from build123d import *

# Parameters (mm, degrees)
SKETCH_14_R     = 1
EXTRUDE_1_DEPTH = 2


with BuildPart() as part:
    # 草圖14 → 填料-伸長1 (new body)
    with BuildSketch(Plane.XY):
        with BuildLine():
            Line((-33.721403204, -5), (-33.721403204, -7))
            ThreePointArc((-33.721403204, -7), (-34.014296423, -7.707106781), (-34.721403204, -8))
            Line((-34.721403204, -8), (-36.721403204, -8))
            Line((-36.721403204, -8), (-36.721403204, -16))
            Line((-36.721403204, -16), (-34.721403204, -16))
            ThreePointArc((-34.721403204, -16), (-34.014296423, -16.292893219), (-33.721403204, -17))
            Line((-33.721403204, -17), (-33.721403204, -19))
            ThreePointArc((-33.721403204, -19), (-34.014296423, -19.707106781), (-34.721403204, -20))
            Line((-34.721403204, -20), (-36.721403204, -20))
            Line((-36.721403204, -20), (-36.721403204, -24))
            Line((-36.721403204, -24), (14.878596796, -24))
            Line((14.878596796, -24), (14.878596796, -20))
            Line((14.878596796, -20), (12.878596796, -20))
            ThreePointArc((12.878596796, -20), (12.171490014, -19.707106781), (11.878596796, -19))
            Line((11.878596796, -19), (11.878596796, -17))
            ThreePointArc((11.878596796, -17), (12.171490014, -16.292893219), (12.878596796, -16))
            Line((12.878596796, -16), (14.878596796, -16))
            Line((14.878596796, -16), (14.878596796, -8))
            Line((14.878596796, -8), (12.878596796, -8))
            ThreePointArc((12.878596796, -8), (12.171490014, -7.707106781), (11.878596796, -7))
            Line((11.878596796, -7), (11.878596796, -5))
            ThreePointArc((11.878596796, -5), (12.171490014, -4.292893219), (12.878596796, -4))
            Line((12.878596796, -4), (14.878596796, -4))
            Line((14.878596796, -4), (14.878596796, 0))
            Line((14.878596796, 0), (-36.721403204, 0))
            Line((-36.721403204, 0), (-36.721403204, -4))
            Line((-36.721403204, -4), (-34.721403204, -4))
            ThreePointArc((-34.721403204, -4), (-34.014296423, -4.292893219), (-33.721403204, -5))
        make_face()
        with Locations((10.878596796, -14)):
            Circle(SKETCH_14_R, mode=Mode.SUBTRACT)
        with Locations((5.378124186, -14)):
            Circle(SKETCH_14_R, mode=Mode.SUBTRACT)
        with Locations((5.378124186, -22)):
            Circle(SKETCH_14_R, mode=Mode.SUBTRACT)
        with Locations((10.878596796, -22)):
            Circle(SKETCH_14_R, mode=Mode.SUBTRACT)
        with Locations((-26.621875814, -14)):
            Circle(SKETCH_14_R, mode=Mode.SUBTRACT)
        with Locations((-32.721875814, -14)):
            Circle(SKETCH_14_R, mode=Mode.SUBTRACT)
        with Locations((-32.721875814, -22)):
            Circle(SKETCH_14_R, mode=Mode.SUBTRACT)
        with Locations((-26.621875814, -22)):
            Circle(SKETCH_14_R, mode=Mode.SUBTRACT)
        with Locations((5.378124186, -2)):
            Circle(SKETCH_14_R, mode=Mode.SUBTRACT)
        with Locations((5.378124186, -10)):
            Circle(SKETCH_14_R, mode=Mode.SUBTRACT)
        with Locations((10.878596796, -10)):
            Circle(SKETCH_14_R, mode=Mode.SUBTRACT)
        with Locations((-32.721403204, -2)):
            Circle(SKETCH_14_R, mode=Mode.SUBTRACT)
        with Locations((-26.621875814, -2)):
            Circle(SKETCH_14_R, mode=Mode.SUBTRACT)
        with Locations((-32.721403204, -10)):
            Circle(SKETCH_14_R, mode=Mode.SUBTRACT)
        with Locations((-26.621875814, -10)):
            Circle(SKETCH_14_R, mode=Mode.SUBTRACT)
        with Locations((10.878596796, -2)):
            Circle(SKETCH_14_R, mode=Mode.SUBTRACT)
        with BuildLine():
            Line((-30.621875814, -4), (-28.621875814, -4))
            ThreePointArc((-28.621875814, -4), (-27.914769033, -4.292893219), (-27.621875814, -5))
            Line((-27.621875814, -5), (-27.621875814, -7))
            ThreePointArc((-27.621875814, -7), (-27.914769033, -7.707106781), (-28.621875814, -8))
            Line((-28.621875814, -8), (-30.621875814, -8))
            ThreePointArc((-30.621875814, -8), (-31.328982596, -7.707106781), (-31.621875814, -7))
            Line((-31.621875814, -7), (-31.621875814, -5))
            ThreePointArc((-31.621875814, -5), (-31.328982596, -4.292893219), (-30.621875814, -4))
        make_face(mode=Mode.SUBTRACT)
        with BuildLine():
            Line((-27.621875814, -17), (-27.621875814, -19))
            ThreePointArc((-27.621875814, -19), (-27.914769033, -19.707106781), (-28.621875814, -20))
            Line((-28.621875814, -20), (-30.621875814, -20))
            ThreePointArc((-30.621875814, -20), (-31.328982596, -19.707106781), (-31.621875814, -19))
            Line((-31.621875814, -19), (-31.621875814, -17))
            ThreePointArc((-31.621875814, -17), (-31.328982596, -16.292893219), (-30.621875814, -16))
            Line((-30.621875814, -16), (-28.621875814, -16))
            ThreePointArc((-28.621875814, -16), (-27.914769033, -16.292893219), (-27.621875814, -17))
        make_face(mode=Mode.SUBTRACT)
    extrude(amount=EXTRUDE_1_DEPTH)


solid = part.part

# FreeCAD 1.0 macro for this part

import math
import FreeCAD as App
import Part
import Sketcher

V = App.Vector
Q = App.Units.Quantity

doc = App.newDocument("Part")
body = doc.addObject("PartDesign::Body", "Body")

# Sketch on XY plane
sketch1 = doc.addObject("Sketcher::SketchObject", "Sketch")
body.addObject(sketch1)
sketch1.AttachmentSupport = (doc.XY_Plane, [""])
sketch1.MapMode = "FlatFace"
sketch1.addGeometry(Part.LineSegment(V(-33.7, -5, 0), V(-33.7, -7, 0)), False)
sketch1.addGeometry(Part.ArcOfCircle(Part.Circle(V(-34.7, -7, 0), V(0, 0, 1), 1), math.radians(-90), math.radians(0)), False)
sketch1.addGeometry(Part.LineSegment(V(-34.7, -8, 0), V(-36.7, -8, 0)), False)
sketch1.addGeometry(Part.LineSegment(V(-36.7, -8, 0), V(-36.7, -16, 0)), False)
sketch1.addGeometry(Part.LineSegment(V(-36.7, -16, 0), V(-34.7, -16, 0)), False)
sketch1.addGeometry(Part.ArcOfCircle(Part.Circle(V(-34.7, -17, 0), V(0, 0, 1), 1), math.radians(0), math.radians(90)), False)
sketch1.addGeometry(Part.LineSegment(V(-33.7, -17, 0), V(-33.7, -19, 0)), False)
sketch1.addGeometry(Part.ArcOfCircle(Part.Circle(V(-34.7, -19, 0), V(0, 0, 1), 1), math.radians(-90), math.radians(0)), False)
sketch1.addGeometry(Part.LineSegment(V(-34.7, -20, 0), V(-36.7, -20, 0)), False)
sketch1.addGeometry(Part.LineSegment(V(-36.7, -20, 0), V(-36.7, -24, 0)), False)
sketch1.addGeometry(Part.LineSegment(V(-36.7, -24, 0), V(14.9, -24, 0)), False)
sketch1.addGeometry(Part.LineSegment(V(14.9, -24, 0), V(14.9, -20, 0)), False)
sketch1.addGeometry(Part.LineSegment(V(14.9, -20, 0), V(12.9, -20, 0)), False)
sketch1.addGeometry(Part.ArcOfCircle(Part.Circle(V(12.9, -19, 0), V(0, 0, 1), 1), math.radians(180), math.radians(270)), False)
sketch1.addGeometry(Part.LineSegment(V(11.9, -19, 0), V(11.9, -17, 0)), False)
sketch1.addGeometry(Part.ArcOfCircle(Part.Circle(V(12.9, -17, 0), V(0, 0, 1), 1), math.radians(90), math.radians(180)), False)
sketch1.addGeometry(Part.LineSegment(V(12.9, -16, 0), V(14.9, -16, 0)), False)
sketch1.addGeometry(Part.LineSegment(V(14.9, -16, 0), V(14.9, -8, 0)), False)
sketch1.addGeometry(Part.LineSegment(V(14.9, -8, 0), V(12.9, -8, 0)), False)
sketch1.addGeometry(Part.ArcOfCircle(Part.Circle(V(12.9, -7, 0), V(0, 0, 1), 1), math.radians(180), math.radians(270)), False)
sketch1.addGeometry(Part.LineSegment(V(11.9, -7, 0), V(11.9, -5, 0)), False)
sketch1.addGeometry(Part.ArcOfCircle(Part.Circle(V(12.9, -5, 0), V(0, 0, 1), 1), math.radians(90), math.radians(180)), False)
sketch1.addGeometry(Part.LineSegment(V(12.9, -4, 0), V(14.9, -4, 0)), False)
sketch1.addGeometry(Part.LineSegment(V(14.9, -4, 0), V(14.9, 0, 0)), False)
sketch1.addGeometry(Part.LineSegment(V(14.9, 0, 0), V(-36.7, 0, 0)), False)
sketch1.addGeometry(Part.LineSegment(V(-36.7, 0, 0), V(-36.7, -4, 0)), False)
sketch1.addGeometry(Part.LineSegment(V(-36.7, -4, 0), V(-34.7, -4, 0)), False)
sketch1.addGeometry(Part.ArcOfCircle(Part.Circle(V(-34.7, -5, 0), V(0, 0, 1), 1), math.radians(0), math.radians(90)), False)
sketch1.addGeometry(Part.Circle(V(-32.7, -22, 0), V(0, 0, 1), 1), False)
sketch1.addGeometry(Part.Circle(V(-26.6, -22, 0), V(0, 0, 1), 1), False)
sketch1.addGeometry(Part.ArcOfCircle(Part.Circle(V(-28.6, -17, 0), V(0, 0, 1), 1), math.radians(0), math.radians(90)), False)
sketch1.addGeometry(Part.LineSegment(V(-27.6, -17, 0), V(-27.6, -19, 0)), False)
sketch1.addGeometry(Part.ArcOfCircle(Part.Circle(V(-28.6, -19, 0), V(0, 0, 1), 1), math.radians(-90), math.radians(0)), False)
sketch1.addGeometry(Part.LineSegment(V(-28.6, -20, 0), V(-30.6, -20, 0)), False)
sketch1.addGeometry(Part.ArcOfCircle(Part.Circle(V(-30.6, -19, 0), V(0, 0, 1), 1), math.radians(180), math.radians(270)), False)
sketch1.addGeometry(Part.LineSegment(V(-31.6, -19, 0), V(-31.6, -17, 0)), False)
sketch1.addGeometry(Part.ArcOfCircle(Part.Circle(V(-30.6, -17, 0), V(0, 0, 1), 1), math.radians(90), math.radians(180)), False)
sketch1.addGeometry(Part.LineSegment(V(-30.6, -16, 0), V(-28.6, -16, 0)), False)
sketch1.addGeometry(Part.Circle(V(-32.7, -14, 0), V(0, 0, 1), 1), False)
sketch1.addGeometry(Part.Circle(V(-26.6, -14, 0), V(0, 0, 1), 1), False)
sketch1.addGeometry(Part.Circle(V(5.4, -22, 0), V(0, 0, 1), 1), False)
sketch1.addGeometry(Part.Circle(V(10.9, -22, 0), V(0, 0, 1), 1), False)
sketch1.addGeometry(Part.Circle(V(5.4, -14, 0), V(0, 0, 1), 1), False)
sketch1.addGeometry(Part.Circle(V(10.9, -14, 0), V(0, 0, 1), 1), False)
sketch1.addGeometry(Part.Circle(V(-32.7, -10, 0), V(0, 0, 1), 1), False)
sketch1.addGeometry(Part.Circle(V(-26.6, -10, 0), V(0, 0, 1), 1), False)
sketch1.addGeometry(Part.ArcOfCircle(Part.Circle(V(-30.6, -5, 0), V(0, 0, 1), 1), math.radians(90), math.radians(180)), False)
sketch1.addGeometry(Part.LineSegment(V(-30.6, -4, 0), V(-28.6, -4, 0)), False)
sketch1.addGeometry(Part.ArcOfCircle(Part.Circle(V(-28.6, -5, 0), V(0, 0, 1), 1), math.radians(0), math.radians(90)), False)
sketch1.addGeometry(Part.LineSegment(V(-27.6, -5, 0), V(-27.6, -7, 0)), False)
sketch1.addGeometry(Part.ArcOfCircle(Part.Circle(V(-28.6, -7, 0), V(0, 0, 1), 1), math.radians(-90), math.radians(0)), False)
sketch1.addGeometry(Part.LineSegment(V(-28.6, -8, 0), V(-30.6, -8, 0)), False)
sketch1.addGeometry(Part.ArcOfCircle(Part.Circle(V(-30.6, -7, 0), V(0, 0, 1), 1), math.radians(180), math.radians(270)), False)
sketch1.addGeometry(Part.LineSegment(V(-31.6, -7, 0), V(-31.6, -5, 0)), False)
sketch1.addGeometry(Part.Circle(V(-32.7, -2, 0), V(0, 0, 1), 1), False)
sketch1.addGeometry(Part.Circle(V(-26.6, -2, 0), V(0, 0, 1), 1), False)
sketch1.addGeometry(Part.Circle(V(5.4, -10, 0), V(0, 0, 1), 1), False)
sketch1.addGeometry(Part.Circle(V(10.9, -10, 0), V(0, 0, 1), 1), False)
sketch1.addGeometry(Part.Circle(V(5.4, -2, 0), V(0, 0, 1), 1), False)
sketch1.addGeometry(Part.Circle(V(10.9, -2, 0), V(0, 0, 1), 1), False)
sketch1.addConstraint(Sketcher.Constraint("Tangent", 0, 2, 1, 2))
sketch1.addConstraint(Sketcher.Constraint("Tangent", 1, 1, 2, 1))
sketch1.addConstraint(Sketcher.Constraint("Coincident", 2, 2, 3, 1))
sketch1.addConstraint(Sketcher.Constraint("Coincident", 3, 2, 4, 1))
sketch1.addConstraint(Sketcher.Constraint("Tangent", 4, 2, 5, 2))
sketch1.addConstraint(Sketcher.Constraint("Tangent", 5, 1, 6, 1))
sketch1.addConstraint(Sketcher.Constraint("Tangent", 6, 2, 7, 2))
sketch1.addConstraint(Sketcher.Constraint("Tangent", 7, 1, 8, 1))
sketch1.addConstraint(Sketcher.Constraint("Coincident", 8, 2, 9, 1))
sketch1.addConstraint(Sketcher.Constraint("Coincident", 9, 2, 10, 1))
sketch1.addConstraint(Sketcher.Constraint("Coincident", 10, 2, 11, 1))
sketch1.addConstraint(Sketcher.Constraint("Coincident", 11, 2, 12, 1))
sketch1.addConstraint(Sketcher.Constraint("Tangent", 12, 2, 13, 2))
sketch1.addConstraint(Sketcher.Constraint("Tangent", 13, 1, 14, 1))
sketch1.addConstraint(Sketcher.Constraint("Tangent", 14, 2, 15, 2))
sketch1.addConstraint(Sketcher.Constraint("Tangent", 15, 1, 16, 1))
sketch1.addConstraint(Sketcher.Constraint("Coincident", 16, 2, 17, 1))
sketch1.addConstraint(Sketcher.Constraint("Coincident", 17, 2, 18, 1))
sketch1.addConstraint(Sketcher.Constraint("Tangent", 18, 2, 19, 2))
sketch1.addConstraint(Sketcher.Constraint("Tangent", 19, 1, 20, 1))
sketch1.addConstraint(Sketcher.Constraint("Tangent", 20, 2, 21, 2))
sketch1.addConstraint(Sketcher.Constraint("Tangent", 21, 1, 22, 1))
sketch1.addConstraint(Sketcher.Constraint("Coincident", 22, 2, 23, 1))
sketch1.addConstraint(Sketcher.Constraint("Coincident", 23, 2, 24, 1))
sketch1.addConstraint(Sketcher.Constraint("Coincident", 24, 2, 25, 1))
sketch1.addConstraint(Sketcher.Constraint("Coincident", 25, 2, 26, 1))
sketch1.addConstraint(Sketcher.Constraint("Tangent", 26, 2, 27, 2))
sketch1.addConstraint(Sketcher.Constraint("Tangent", 27, 1, 0, 1))
sketch1.addConstraint(Sketcher.Constraint("Tangent", 30, 1, 31, 1))
sketch1.addConstraint(Sketcher.Constraint("Tangent", 31, 2, 32, 2))
sketch1.addConstraint(Sketcher.Constraint("Tangent", 32, 1, 33, 1))
sketch1.addConstraint(Sketcher.Constraint("Tangent", 33, 2, 34, 2))
sketch1.addConstraint(Sketcher.Constraint("Tangent", 34, 1, 35, 1))
sketch1.addConstraint(Sketcher.Constraint("Tangent", 35, 2, 36, 2))
sketch1.addConstraint(Sketcher.Constraint("Tangent", 36, 1, 37, 1))
sketch1.addConstraint(Sketcher.Constraint("Tangent", 37, 2, 30, 2))
sketch1.addConstraint(Sketcher.Constraint("Tangent", 46, 1, 47, 1))
sketch1.addConstraint(Sketcher.Constraint("Tangent", 47, 2, 48, 2))
sketch1.addConstraint(Sketcher.Constraint("Tangent", 48, 1, 49, 1))
sketch1.addConstraint(Sketcher.Constraint("Tangent", 49, 2, 50, 2))
sketch1.addConstraint(Sketcher.Constraint("Tangent", 50, 1, 51, 1))
sketch1.addConstraint(Sketcher.Constraint("Tangent", 51, 2, 52, 2))
sketch1.addConstraint(Sketcher.Constraint("Tangent", 52, 1, 53, 1))
sketch1.addConstraint(Sketcher.Constraint("Tangent", 53, 2, 46, 2))
sketch1.addConstraint(Sketcher.Constraint("Vertical", 0))
sketch1.addConstraint(Sketcher.Constraint("Horizontal", 2))
sketch1.addConstraint(Sketcher.Constraint("Vertical", 3))
sketch1.addConstraint(Sketcher.Constraint("Horizontal", 4))
sketch1.addConstraint(Sketcher.Constraint("Vertical", 6))
sketch1.addConstraint(Sketcher.Constraint("Horizontal", 8))
sketch1.addConstraint(Sketcher.Constraint("Vertical", 9))
sketch1.addConstraint(Sketcher.Constraint("Horizontal", 10))
sketch1.addConstraint(Sketcher.Constraint("Vertical", 11))
sketch1.addConstraint(Sketcher.Constraint("Horizontal", 12))
sketch1.addConstraint(Sketcher.Constraint("Vertical", 14))
sketch1.addConstraint(Sketcher.Constraint("Horizontal", 16))
sketch1.addConstraint(Sketcher.Constraint("Vertical", 17))
sketch1.addConstraint(Sketcher.Constraint("Horizontal", 18))
sketch1.addConstraint(Sketcher.Constraint("Vertical", 20))
sketch1.addConstraint(Sketcher.Constraint("Horizontal", 22))
sketch1.addConstraint(Sketcher.Constraint("Vertical", 23))
sketch1.addConstraint(Sketcher.Constraint("Horizontal", 24))
sketch1.addConstraint(Sketcher.Constraint("Vertical", 25))
sketch1.addConstraint(Sketcher.Constraint("Horizontal", 26))
sketch1.addConstraint(Sketcher.Constraint("Vertical", 31))
sketch1.addConstraint(Sketcher.Constraint("Horizontal", 33))
sketch1.addConstraint(Sketcher.Constraint("Vertical", 35))
sketch1.addConstraint(Sketcher.Constraint("Horizontal", 37))
sketch1.addConstraint(Sketcher.Constraint("Horizontal", 47))
sketch1.addConstraint(Sketcher.Constraint("Vertical", 49))
sketch1.addConstraint(Sketcher.Constraint("Horizontal", 51))
sketch1.addConstraint(Sketcher.Constraint("Vertical", 53))
sketch1.addConstraint(Sketcher.Constraint("Equal", 1, 5))
sketch1.addConstraint(Sketcher.Constraint("Equal", 5, 7))
sketch1.addConstraint(Sketcher.Constraint("Equal", 7, 13))
sketch1.addConstraint(Sketcher.Constraint("Equal", 13, 15))
sketch1.addConstraint(Sketcher.Constraint("Equal", 15, 19))
sketch1.addConstraint(Sketcher.Constraint("Equal", 19, 21))
sketch1.addConstraint(Sketcher.Constraint("Equal", 21, 27))
sketch1.addConstraint(Sketcher.Constraint("Equal", 27, 28))
sketch1.addConstraint(Sketcher.Constraint("Equal", 28, 29))
sketch1.addConstraint(Sketcher.Constraint("Equal", 29, 30))
sketch1.addConstraint(Sketcher.Constraint("Equal", 30, 32))
sketch1.addConstraint(Sketcher.Constraint("Equal", 32, 34))
sketch1.addConstraint(Sketcher.Constraint("Equal", 34, 36))
sketch1.addConstraint(Sketcher.Constraint("Equal", 36, 38))
sketch1.addConstraint(Sketcher.Constraint("Equal", 38, 39))
sketch1.addConstraint(Sketcher.Constraint("Equal", 39, 40))
sketch1.addConstraint(Sketcher.Constraint("Equal", 40, 41))
sketch1.addConstraint(Sketcher.Constraint("Equal", 41, 42))
sketch1.addConstraint(Sketcher.Constraint("Equal", 42, 43))
sketch1.addConstraint(Sketcher.Constraint("Equal", 43, 44))
sketch1.addConstraint(Sketcher.Constraint("Equal", 44, 45))
sketch1.addConstraint(Sketcher.Constraint("Equal", 45, 46))
sketch1.addConstraint(Sketcher.Constraint("Equal", 46, 48))
sketch1.addConstraint(Sketcher.Constraint("Equal", 48, 50))
sketch1.addConstraint(Sketcher.Constraint("Equal", 50, 52))
sketch1.addConstraint(Sketcher.Constraint("Equal", 52, 54))
sketch1.addConstraint(Sketcher.Constraint("Equal", 54, 55))
sketch1.addConstraint(Sketcher.Constraint("Equal", 55, 56))
sketch1.addConstraint(Sketcher.Constraint("Equal", 56, 57))
sketch1.addConstraint(Sketcher.Constraint("Equal", 57, 58))
sketch1.addConstraint(Sketcher.Constraint("Equal", 58, 59))
sketch1.addConstraint(Sketcher.Constraint("PointOnObject", 23, 2, -1))
sketch1.addConstraint(Sketcher.Constraint("Horizontal", 7, 3, 13, 3))
sketch1.addConstraint(Sketcher.Constraint("Horizontal", 5, 3, 15, 3))
sketch1.addConstraint(Sketcher.Constraint("Horizontal", 1, 3, 19, 3))
sketch1.addConstraint(Sketcher.Constraint("Horizontal", 21, 3, 27, 3))
sketch1.addConstraint(Sketcher.Constraint("Horizontal", 28, 3, 29, 3))
sketch1.addConstraint(Sketcher.Constraint("Horizontal", 15, 3, 30, 3))
sketch1.addConstraint(Sketcher.Constraint("Horizontal", 13, 3, 32, 3))
sketch1.addConstraint(Sketcher.Constraint("Horizontal", 38, 3, 39, 3))
sketch1.addConstraint(Sketcher.Constraint("Horizontal", 29, 3, 40, 3))
sketch1.addConstraint(Sketcher.Constraint("Horizontal", 40, 3, 41, 3))
sketch1.addConstraint(Sketcher.Constraint("Horizontal", 39, 3, 42, 3))
sketch1.addConstraint(Sketcher.Constraint("Horizontal", 42, 3, 43, 3))
sketch1.addConstraint(Sketcher.Constraint("Horizontal", 44, 3, 45, 3))
sketch1.addConstraint(Sketcher.Constraint("Horizontal", 27, 3, 46, 3))
sketch1.addConstraint(Sketcher.Constraint("Horizontal", 19, 3, 50, 3))
sketch1.addConstraint(Sketcher.Constraint("Horizontal", 54, 3, 55, 3))
sketch1.addConstraint(Sketcher.Constraint("Horizontal", 45, 3, 56, 3))
sketch1.addConstraint(Sketcher.Constraint("Horizontal", 56, 3, 57, 3))
sketch1.addConstraint(Sketcher.Constraint("Horizontal", 55, 3, 58, 3))
sketch1.addConstraint(Sketcher.Constraint("Horizontal", 58, 3, 59, 3))
sketch1.addConstraint(Sketcher.Constraint("Vertical", 1, 3, 5, 3))
sketch1.addConstraint(Sketcher.Constraint("Vertical", 15, 3, 19, 3))
sketch1.addConstraint(Sketcher.Constraint("Vertical", 28, 3, 38, 3))
sketch1.addConstraint(Sketcher.Constraint("Vertical", 29, 3, 39, 3))
sketch1.addConstraint(Sketcher.Constraint("Vertical", 40, 3, 42, 3))
sketch1.addConstraint(Sketcher.Constraint("Vertical", 41, 3, 43, 3))
sketch1.addConstraint(Sketcher.Constraint("Vertical", 39, 3, 45, 3))
sketch1.addConstraint(Sketcher.Constraint("Vertical", 36, 3, 46, 3))
sketch1.addConstraint(Sketcher.Constraint("Vertical", 32, 3, 48, 3))
sketch1.addConstraint(Sketcher.Constraint("Vertical", 44, 3, 54, 3))
sketch1.addConstraint(Sketcher.Constraint("Vertical", 45, 3, 55, 3))
sketch1.addConstraint(Sketcher.Constraint("Vertical", 42, 3, 56, 3))
sketch1.addConstraint(Sketcher.Constraint("Vertical", 43, 3, 57, 3))
sketch1.addConstraint(Sketcher.Constraint("Vertical", 56, 3, 58, 3))
sketch1.addConstraint(Sketcher.Constraint("Vertical", 57, 3, 59, 3))
sketch1.addConstraint(Sketcher.Constraint("Vertical", 3, 2, 8, 2))
sketch1.addConstraint(Sketcher.Constraint("Vertical", 11, 2, 16, 2))
sketch1.addConstraint(Sketcher.Constraint("Vertical", 17, 2, 22, 2))
sketch1.addConstraint(Sketcher.Constraint("Vertical", 9, 2, 24, 2))
sketch1.addConstraint(Sketcher.Constraint("Equal", 8, 12))
sketch1.addConstraint(Sketcher.Constraint("Equal", 26, 33))
sketch1.addConstraint(Sketcher.Constraint("Equal", 51, 0))
sketch1.addConstraint(Sketcher.Constraint("Equal", 0, 6))
sketch1.addConstraint(Sketcher.Constraint("Equal", 11, 23))
sketch1.addConstraint(Sketcher.Constraint("Diameter", 28, Q("2 mm")))
sketch1.addConstraint(Sketcher.Constraint("DistanceX", 2, 2, 2, 1, Q("2 mm")))
sketch1.addConstraint(Sketcher.Constraint("DistanceY", 3, 2, 3, 1, Q("8 mm")))
sketch1.addConstraint(Sketcher.Constraint("DistanceY", 9, 2, 9, 1, Q("4 mm")))
sketch1.addConstraint(Sketcher.Constraint("DistanceX", 10, 1, 10, 2, Q("51.6 mm")))
sketch1.addConstraint(Sketcher.Constraint("DistanceY", 28, 3, -1, 1, Q("22 mm")))
sketch1.addConstraint(Sketcher.Constraint("DistanceY", 38, 3, -1, 1, Q("14 mm")))
sketch1.addConstraint(Sketcher.Constraint("DistanceY", 44, 3, -1, 1, Q("10 mm")))
sketch1.addConstraint(Sketcher.Constraint("DistanceY", 54, 3, -1, 1, Q("2 mm")))
sketch1.addConstraint(Sketcher.Constraint("DistanceX", 1, 3, -1, 1, Q("34.721403 mm")))
sketch1.addConstraint(Sketcher.Constraint("DistanceX", 28, 3, -1, 1, Q("32.721876 mm")))
sketch1.addConstraint(Sketcher.Constraint("DistanceX", 29, 3, -1, 1, Q("26.621876 mm")))
sketch1.addConstraint(Sketcher.Constraint("DistanceX", 30, 3, -1, 1, Q("28.621876 mm")))
sketch1.addConstraint(Sketcher.Constraint("DistanceX", -1, 1, 40, 3, Q("5.378124 mm")))
sketch1.addConstraint(Sketcher.Constraint("DistanceX", -1, 1, 41, 3, Q("10.878597 mm")))
sketch1.addConstraint(Sketcher.Constraint("DistanceX", 44, 3, -1, 1, Q("32.721403 mm")))
pad1 = doc.addObject("PartDesign::Pad", "Pad")
body.addObject(pad1)
pad1.Profile = sketch1
pad1.Length = 2

doc.recompute()
